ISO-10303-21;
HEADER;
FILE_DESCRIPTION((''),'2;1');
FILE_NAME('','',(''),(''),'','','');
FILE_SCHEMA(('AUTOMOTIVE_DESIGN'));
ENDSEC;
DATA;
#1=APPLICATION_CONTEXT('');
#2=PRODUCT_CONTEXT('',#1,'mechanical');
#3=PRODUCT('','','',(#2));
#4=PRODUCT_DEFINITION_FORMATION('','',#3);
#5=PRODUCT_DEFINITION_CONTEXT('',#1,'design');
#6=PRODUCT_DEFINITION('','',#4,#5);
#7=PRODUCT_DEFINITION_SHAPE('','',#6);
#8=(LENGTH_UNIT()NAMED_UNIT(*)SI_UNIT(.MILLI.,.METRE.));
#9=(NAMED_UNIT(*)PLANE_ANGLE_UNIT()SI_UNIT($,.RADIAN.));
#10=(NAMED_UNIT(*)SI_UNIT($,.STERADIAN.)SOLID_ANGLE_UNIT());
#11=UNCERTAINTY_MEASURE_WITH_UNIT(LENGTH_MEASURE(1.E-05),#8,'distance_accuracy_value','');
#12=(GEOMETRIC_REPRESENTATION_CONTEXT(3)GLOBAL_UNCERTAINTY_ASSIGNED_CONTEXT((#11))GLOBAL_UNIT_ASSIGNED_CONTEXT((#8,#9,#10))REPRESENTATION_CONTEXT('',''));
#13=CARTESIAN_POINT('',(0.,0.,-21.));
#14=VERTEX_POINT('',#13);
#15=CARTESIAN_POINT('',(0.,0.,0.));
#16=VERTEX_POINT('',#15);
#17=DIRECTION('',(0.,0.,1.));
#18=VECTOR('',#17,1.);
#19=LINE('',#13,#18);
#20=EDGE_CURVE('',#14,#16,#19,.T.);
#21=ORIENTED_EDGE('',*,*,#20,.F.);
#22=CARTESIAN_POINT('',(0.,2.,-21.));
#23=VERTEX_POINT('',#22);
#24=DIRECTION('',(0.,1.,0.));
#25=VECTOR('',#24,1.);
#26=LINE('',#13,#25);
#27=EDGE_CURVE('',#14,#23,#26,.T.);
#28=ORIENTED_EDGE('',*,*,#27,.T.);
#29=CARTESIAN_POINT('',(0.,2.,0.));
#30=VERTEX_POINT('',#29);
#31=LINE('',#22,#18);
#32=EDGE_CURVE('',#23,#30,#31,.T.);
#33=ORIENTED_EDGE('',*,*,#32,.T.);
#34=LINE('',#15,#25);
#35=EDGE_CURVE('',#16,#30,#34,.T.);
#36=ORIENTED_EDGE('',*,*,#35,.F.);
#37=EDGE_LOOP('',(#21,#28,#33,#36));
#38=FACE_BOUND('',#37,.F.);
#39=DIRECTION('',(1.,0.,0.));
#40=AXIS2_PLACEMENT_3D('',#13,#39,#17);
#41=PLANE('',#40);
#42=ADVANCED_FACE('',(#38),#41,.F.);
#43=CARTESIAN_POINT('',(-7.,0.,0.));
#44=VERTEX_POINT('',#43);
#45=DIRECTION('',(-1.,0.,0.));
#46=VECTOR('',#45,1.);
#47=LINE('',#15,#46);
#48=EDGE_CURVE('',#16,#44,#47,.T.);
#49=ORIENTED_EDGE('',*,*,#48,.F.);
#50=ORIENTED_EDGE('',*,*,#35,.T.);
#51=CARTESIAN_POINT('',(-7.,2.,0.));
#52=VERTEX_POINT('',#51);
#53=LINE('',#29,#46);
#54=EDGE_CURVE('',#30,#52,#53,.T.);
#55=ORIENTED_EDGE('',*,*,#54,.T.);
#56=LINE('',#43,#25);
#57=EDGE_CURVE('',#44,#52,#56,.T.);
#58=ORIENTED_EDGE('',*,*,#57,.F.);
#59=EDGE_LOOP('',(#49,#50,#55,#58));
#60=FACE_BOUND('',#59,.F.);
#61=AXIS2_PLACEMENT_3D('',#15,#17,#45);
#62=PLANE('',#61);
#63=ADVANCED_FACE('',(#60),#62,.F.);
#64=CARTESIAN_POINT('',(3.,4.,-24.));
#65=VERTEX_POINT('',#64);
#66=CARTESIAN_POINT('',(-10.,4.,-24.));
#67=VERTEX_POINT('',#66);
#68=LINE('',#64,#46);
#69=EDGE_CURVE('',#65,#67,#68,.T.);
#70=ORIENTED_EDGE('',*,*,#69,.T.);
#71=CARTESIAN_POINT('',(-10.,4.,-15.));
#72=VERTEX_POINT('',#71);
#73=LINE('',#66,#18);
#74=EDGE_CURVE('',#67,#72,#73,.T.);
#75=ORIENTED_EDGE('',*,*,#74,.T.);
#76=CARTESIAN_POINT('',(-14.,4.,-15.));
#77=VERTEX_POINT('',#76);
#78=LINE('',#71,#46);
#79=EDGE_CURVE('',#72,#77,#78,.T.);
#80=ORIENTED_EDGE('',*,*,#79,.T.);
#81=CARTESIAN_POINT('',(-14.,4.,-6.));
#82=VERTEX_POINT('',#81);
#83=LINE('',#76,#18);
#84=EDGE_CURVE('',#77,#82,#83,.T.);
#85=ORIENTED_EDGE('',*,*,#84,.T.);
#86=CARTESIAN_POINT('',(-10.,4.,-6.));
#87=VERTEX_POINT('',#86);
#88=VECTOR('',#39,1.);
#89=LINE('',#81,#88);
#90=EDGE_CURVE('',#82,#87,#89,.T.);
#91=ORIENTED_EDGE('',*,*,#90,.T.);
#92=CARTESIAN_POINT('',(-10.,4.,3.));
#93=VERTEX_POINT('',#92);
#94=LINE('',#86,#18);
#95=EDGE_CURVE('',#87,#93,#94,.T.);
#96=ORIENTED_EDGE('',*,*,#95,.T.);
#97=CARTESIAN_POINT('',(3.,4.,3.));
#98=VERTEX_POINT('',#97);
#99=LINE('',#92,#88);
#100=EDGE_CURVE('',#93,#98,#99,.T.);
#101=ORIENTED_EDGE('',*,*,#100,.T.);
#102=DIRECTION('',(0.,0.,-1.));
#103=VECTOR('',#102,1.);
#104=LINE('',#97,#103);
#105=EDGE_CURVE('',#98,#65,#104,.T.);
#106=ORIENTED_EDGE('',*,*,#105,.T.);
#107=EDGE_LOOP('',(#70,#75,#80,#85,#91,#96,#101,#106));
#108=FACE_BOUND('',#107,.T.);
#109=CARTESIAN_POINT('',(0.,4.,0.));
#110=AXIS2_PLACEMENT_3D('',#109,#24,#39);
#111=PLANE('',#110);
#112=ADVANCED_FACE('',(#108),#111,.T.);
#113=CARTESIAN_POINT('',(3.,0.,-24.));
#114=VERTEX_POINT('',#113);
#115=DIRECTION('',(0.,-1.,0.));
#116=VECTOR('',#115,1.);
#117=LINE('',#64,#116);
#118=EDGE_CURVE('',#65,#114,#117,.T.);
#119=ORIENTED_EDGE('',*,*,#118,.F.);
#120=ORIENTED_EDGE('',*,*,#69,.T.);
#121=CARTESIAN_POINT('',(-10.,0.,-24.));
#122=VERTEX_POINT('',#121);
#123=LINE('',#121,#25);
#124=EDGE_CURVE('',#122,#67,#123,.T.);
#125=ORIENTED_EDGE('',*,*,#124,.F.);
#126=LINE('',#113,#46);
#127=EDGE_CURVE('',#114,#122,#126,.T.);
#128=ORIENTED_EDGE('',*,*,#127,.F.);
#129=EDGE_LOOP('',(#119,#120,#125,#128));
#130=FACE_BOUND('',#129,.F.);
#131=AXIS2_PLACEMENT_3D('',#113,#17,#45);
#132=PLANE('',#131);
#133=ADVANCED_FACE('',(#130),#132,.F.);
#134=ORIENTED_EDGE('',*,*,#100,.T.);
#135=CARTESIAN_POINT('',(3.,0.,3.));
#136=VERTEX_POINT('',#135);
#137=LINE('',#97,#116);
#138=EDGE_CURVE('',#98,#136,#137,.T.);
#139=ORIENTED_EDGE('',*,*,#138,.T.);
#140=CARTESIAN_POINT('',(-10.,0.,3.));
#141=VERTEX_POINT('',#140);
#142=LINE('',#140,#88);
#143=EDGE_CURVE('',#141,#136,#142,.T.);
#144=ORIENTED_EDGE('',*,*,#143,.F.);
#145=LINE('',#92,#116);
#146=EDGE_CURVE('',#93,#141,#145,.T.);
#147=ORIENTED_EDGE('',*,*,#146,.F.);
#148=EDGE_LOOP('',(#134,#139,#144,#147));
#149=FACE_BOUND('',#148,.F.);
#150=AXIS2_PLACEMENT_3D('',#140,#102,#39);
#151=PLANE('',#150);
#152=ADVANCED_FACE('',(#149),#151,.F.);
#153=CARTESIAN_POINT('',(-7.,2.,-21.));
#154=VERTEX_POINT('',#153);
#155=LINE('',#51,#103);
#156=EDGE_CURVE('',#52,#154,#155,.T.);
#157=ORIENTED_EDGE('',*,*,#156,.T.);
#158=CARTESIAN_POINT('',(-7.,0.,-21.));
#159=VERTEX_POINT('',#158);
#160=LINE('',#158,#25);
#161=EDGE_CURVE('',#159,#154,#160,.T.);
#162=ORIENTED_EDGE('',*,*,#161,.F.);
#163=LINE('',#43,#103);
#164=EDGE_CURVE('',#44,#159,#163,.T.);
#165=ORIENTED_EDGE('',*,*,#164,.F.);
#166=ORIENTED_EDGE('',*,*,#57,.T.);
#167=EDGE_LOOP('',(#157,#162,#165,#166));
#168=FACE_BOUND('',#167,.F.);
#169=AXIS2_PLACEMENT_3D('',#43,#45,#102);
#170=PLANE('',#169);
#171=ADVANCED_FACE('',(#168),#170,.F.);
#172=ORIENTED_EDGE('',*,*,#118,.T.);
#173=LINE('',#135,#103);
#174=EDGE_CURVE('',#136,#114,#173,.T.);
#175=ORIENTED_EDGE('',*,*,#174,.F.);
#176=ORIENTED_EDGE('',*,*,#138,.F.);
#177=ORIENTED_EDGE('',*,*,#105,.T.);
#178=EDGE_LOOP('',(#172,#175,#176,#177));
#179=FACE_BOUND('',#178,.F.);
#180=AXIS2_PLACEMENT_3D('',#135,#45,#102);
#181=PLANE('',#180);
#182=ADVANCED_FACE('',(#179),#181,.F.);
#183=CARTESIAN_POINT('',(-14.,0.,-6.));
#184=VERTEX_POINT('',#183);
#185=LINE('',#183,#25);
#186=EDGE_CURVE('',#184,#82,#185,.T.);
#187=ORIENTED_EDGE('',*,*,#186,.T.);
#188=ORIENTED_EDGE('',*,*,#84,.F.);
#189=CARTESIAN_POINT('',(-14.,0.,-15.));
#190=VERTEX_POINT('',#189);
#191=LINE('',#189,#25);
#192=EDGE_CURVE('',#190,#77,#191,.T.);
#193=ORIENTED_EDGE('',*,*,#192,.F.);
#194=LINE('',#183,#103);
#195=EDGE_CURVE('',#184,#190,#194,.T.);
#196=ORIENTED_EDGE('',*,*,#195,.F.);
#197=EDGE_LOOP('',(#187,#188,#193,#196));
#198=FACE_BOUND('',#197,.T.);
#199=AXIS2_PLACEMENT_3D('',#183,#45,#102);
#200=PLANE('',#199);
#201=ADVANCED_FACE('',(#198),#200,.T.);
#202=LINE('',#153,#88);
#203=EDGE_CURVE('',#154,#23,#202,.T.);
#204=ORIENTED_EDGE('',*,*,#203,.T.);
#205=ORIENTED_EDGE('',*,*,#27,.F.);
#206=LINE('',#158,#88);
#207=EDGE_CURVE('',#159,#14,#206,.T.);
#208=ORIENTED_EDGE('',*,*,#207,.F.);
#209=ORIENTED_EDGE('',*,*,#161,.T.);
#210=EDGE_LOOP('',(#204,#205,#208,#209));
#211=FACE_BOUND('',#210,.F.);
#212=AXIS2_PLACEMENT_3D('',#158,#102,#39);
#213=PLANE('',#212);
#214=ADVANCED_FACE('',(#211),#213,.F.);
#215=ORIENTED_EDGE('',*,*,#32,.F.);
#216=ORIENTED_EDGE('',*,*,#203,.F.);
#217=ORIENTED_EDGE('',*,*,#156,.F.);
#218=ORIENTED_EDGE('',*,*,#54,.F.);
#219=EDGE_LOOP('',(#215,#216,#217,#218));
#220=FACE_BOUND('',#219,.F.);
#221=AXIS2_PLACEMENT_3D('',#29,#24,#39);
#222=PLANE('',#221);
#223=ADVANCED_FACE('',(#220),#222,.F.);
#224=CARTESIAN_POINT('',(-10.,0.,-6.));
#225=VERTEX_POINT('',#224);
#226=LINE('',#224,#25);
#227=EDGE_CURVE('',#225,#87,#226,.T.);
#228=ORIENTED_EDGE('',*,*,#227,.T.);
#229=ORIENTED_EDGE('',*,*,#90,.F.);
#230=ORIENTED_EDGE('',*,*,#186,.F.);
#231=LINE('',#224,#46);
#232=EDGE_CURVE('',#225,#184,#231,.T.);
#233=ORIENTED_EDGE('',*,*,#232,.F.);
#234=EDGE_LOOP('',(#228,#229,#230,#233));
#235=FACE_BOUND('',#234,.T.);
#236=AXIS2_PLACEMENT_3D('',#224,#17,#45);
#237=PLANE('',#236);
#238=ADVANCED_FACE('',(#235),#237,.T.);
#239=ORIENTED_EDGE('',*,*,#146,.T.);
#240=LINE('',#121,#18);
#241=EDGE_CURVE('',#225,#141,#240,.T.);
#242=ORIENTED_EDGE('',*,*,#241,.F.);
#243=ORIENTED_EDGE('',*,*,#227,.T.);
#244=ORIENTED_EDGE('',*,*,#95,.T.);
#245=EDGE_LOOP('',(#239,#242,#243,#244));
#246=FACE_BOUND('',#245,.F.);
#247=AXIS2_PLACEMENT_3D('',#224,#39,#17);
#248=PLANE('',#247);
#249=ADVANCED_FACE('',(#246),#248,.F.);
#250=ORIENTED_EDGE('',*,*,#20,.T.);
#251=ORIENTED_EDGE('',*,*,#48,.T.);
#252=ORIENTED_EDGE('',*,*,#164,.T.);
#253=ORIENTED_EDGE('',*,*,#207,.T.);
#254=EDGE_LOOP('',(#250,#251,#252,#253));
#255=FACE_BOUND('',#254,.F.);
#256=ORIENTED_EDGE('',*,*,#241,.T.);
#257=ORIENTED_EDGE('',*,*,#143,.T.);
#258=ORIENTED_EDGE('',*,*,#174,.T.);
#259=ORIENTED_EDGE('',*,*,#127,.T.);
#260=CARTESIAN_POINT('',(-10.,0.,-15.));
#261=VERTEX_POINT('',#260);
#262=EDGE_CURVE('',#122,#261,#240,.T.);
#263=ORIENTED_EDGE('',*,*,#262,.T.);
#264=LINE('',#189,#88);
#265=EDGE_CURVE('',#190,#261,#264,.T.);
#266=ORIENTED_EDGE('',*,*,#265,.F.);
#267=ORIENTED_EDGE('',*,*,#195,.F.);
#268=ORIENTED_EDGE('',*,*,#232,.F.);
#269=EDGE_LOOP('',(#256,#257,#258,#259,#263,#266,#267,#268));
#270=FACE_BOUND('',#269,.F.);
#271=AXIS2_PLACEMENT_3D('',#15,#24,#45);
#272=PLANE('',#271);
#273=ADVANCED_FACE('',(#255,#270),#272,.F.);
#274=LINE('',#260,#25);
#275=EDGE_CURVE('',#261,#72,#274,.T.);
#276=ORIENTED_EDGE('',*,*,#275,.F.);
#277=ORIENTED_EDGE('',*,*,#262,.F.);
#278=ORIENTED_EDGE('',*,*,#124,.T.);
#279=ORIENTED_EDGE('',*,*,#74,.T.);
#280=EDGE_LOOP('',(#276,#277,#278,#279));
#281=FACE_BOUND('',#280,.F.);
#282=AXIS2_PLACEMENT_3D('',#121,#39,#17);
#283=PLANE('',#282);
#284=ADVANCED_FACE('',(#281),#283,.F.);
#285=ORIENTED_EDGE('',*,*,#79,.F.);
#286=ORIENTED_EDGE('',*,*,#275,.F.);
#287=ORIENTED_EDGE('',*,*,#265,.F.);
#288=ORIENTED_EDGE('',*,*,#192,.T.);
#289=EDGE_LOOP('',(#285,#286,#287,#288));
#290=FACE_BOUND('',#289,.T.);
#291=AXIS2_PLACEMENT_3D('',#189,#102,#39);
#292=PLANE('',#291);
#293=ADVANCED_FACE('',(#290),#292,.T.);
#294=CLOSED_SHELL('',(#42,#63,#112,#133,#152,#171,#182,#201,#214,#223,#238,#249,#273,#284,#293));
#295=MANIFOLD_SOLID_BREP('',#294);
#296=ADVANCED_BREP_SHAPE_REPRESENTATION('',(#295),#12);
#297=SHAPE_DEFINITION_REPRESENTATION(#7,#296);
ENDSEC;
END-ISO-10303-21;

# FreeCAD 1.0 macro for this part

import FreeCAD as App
import Part
import Sketcher

V = App.Vector
Q = App.Units.Quantity

doc = App.newDocument("Part")
body = doc.addObject("PartDesign::Body", "Body")

# Sketch on XZ plane
sketch1 = body.newObject("Sketcher::SketchObject", "Sketch")
sketch1.AttachmentSupport = (doc.getObject("XZ_Plane"), [""])
sketch1.MapMode = "FlatFace"
sketch1.addGeometry([
    Part.LineSegment(V(3, -24, 0), V(-10, -24, 0)),  # 0
    Part.LineSegment(V(-10, -24, 0), V(-10, -15, 0)),  # 1
    Part.LineSegment(V(-10, -15, 0), V(-14, -15, 0)),  # 2
    Part.LineSegment(V(-14, -15, 0), V(-14, -6, 0)),  # 3
    Part.LineSegment(V(-14, -6, 0), V(-10, -6, 0)),  # 4
    Part.LineSegment(V(-10, -6, 0), V(-10, 3, 0)),  # 5
    Part.LineSegment(V(-10, 3, 0), V(3, 3, 0)),  # 6
    Part.LineSegment(V(3, 3, 0), V(3, -24, 0)),  # 7
    Part.LineSegment(V(0, -21, 0), V(0, 0, 0)),  # 8
    Part.LineSegment(V(0, 0, 0), V(-7, 0, 0)),  # 9
    Part.LineSegment(V(-7, 0, 0), V(-7, -21, 0)),  # 10
    Part.LineSegment(V(-7, -21, 0), V(0, -21, 0)),  # 11
], False)
sketch1.addConstraint([
    Sketcher.Constraint("Coincident", 0, 2, 1, 1),
    Sketcher.Constraint("Coincident", 1, 2, 2, 1),
    Sketcher.Constraint("Coincident", 2, 2, 3, 1),
    Sketcher.Constraint("Coincident", 3, 2, 4, 1),
    Sketcher.Constraint("Coincident", 4, 2, 5, 1),
    Sketcher.Constraint("Coincident", 5, 2, 6, 1),
    Sketcher.Constraint("Coincident", 6, 2, 7, 1),
    Sketcher.Constraint("Coincident", 7, 2, 0, 1),
    Sketcher.Constraint("Coincident", 8, 2, 9, 1),
    Sketcher.Constraint("Coincident", 9, 2, 10, 1),
    Sketcher.Constraint("Coincident", 10, 2, 11, 1),
    Sketcher.Constraint("Coincident", 11, 2, 8, 1),
    Sketcher.Constraint("Horizontal", 0),
    Sketcher.Constraint("Vertical", 1),
    Sketcher.Constraint("Horizontal", 2),
    Sketcher.Constraint("Vertical", 3),
    Sketcher.Constraint("Horizontal", 4),
    Sketcher.Constraint("Vertical", 5),
    Sketcher.Constraint("Horizontal", 6),
    Sketcher.Constraint("Vertical", 7),
    Sketcher.Constraint("Vertical", 8),
    Sketcher.Constraint("Horizontal", 9),
    Sketcher.Constraint("Vertical", 10),
    Sketcher.Constraint("Horizontal", 11),
    Sketcher.Constraint("Coincident", 8, 2, -1, 1),
    Sketcher.Constraint("Vertical", 1, 2, 4, 2),
    Sketcher.Constraint("Equal", 1, 3),
    Sketcher.Constraint("Equal", 3, 5),
    Sketcher.Constraint("DistanceX", 2, 2, 2, 1, Q("4 mm")),
    Sketcher.Constraint("DistanceX", 9, 2, 9, 1, Q("7 mm")),
    Sketcher.Constraint("DistanceY", 1, 1, 1, 2, Q("9 mm")),
    Sketcher.Constraint("DistanceY", 8, 1, 8, 2, Q("21 mm")),
    Sketcher.Constraint("DistanceY", -1, 1, 5, 2, Q("3 mm")),
    Sketcher.Constraint("DistanceX", -1, 1, 6, 2, Q("3 mm")),
    Sketcher.Constraint("DistanceX", 5, 2, 9, 2, Q("3 mm")),
])
pad1 = body.newObject("PartDesign::Pad", "Pad")
pad1.Profile = sketch1
pad1.Length = 2
pad1.Reversed = True

# Sketch on XZ plane
sketch2 = body.newObject("Sketcher::SketchObject", "Sketch001")
sketch2.AttachmentSupport = (doc.getObject("XZ_Plane"), [""])
sketch2.MapMode = "FlatFace"
sketch2.AttachmentOffset = App.Placement(V(0, 0, -2), App.Rotation())
sketch2.addGeometry([
    Part.LineSegment(V(-10, -24, 0), V(-10, -15, 0)),  # 0
    Part.LineSegment(V(-10, -15, 0), V(-14, -15, 0)),  # 1
    Part.LineSegment(V(-14, -15, 0), V(-14, -6, 0)),  # 2
    Part.LineSegment(V(-14, -6, 0), V(-10, -6, 0)),  # 3
    Part.LineSegment(V(-10, -6, 0), V(-10, 3, 0)),  # 4
    Part.LineSegment(V(-10, 3, 0), V(3, 3, 0)),  # 5
    Part.LineSegment(V(3, 3, 0), V(3, -24, 0)),  # 6
    Part.LineSegment(V(3, -24, 0), V(-10, -24, 0)),  # 7
], False)
sketch2.addConstraint([
    Sketcher.Constraint("Coincident", 0, 2, 1, 1),
    Sketcher.Constraint("Coincident", 1, 2, 2, 1),
    Sketcher.Constraint("Coincident", 2, 2, 3, 1),
    Sketcher.Constraint("Coincident", 3, 2, 4, 1),
    Sketcher.Constraint("Coincident", 4, 2, 5, 1),
    Sketcher.Constraint("Coincident", 5, 2, 6, 1),
    Sketcher.Constraint("Coincident", 6, 2, 7, 1),
    Sketcher.Constraint("Coincident", 7, 2, 0, 1),
    Sketcher.Constraint("Vertical", 0),
    Sketcher.Constraint("Horizontal", 1),
    Sketcher.Constraint("Vertical", 2),
    Sketcher.Constraint("Horizontal", 3),
    Sketcher.Constraint("Vertical", 4),
    Sketcher.Constraint("Horizontal", 5),
    Sketcher.Constraint("Vertical", 6),
    Sketcher.Constraint("Horizontal", 7),
    Sketcher.Constraint("Vertical", 0, 2, 3, 2),
    Sketcher.Constraint("Equal", 0, 2),
    Sketcher.Constraint("Equal", 2, 4),
    Sketcher.Constraint("DistanceX", 1, 2, 1, 1, Q("4 mm")),
    Sketcher.Constraint("DistanceX", 5, 1, 5, 2, Q("13 mm")),
    Sketcher.Constraint("DistanceY", 0, 1, 0, 2, Q("9 mm")),
    Sketcher.Constraint("DistanceX", 0, 2, -1, 1, Q("10 mm")),
    Sketcher.Constraint("DistanceY", 0, 2, -1, 1, Q("15 mm")),
])
pad2 = body.newObject("PartDesign::Pad", "Pad001")
pad2.Profile = sketch2
pad2.Length = 2
pad2.Reversed = True

doc.recompute()
